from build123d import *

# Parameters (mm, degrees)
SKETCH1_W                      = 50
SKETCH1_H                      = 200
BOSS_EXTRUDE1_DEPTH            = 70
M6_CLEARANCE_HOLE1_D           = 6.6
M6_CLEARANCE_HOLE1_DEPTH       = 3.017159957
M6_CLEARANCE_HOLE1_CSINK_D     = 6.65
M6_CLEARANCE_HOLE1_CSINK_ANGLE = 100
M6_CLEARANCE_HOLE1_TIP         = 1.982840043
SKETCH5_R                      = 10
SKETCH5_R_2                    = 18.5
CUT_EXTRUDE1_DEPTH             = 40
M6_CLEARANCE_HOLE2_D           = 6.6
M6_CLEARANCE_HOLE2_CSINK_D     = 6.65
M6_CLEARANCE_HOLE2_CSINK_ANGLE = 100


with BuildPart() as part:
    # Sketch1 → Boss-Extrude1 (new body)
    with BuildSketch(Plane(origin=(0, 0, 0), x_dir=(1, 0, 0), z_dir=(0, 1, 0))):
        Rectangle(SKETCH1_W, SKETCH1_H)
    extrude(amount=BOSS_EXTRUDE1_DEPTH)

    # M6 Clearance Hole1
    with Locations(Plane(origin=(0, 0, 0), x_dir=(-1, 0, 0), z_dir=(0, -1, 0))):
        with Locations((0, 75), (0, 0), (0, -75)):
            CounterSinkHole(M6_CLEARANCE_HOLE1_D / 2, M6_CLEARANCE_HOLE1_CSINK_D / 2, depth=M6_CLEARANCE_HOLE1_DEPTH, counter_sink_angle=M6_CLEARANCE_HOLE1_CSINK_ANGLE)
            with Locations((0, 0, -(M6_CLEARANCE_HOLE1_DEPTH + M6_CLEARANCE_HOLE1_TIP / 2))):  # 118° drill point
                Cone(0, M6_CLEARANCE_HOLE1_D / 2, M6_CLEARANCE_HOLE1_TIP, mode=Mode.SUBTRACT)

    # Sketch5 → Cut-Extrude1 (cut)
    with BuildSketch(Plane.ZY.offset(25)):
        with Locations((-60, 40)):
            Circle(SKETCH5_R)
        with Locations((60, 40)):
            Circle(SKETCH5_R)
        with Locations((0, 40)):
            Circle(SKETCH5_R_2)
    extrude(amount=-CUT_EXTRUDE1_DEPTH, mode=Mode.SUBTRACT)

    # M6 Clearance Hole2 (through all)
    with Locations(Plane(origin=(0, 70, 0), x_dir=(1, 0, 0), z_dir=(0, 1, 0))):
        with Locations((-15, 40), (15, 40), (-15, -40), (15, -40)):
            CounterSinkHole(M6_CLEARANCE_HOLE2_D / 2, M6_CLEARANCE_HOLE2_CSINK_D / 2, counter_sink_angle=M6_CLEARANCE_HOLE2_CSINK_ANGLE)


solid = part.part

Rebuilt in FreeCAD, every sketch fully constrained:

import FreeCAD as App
import Part
import Sketcher

V = App.Vector
Q = App.Units.Quantity

doc = App.newDocument("Part")
params = doc.addObject("Spreadsheet::Sheet", "Params")
for row, (alias, value) in enumerate([
    ("sketch1_width", "50 mm"),
    ("sketch1_height", "200 mm"),
    ("pad1_length", "70 mm"),
    ("sketch2_diameter", "6.6 mm"),
    ("hole_diameter", "6.6 mm"),
    ("hole_depth", "3.01716 mm"),
    ("hole_csink_diameter", "6.65 mm"),
    ("sketch3_diameter", "20 mm"),
    ("sketch3_diameter2", "37 mm"),
    ("pocket1_length", "40 mm"),
    ("sketch4_diameter", "6.6 mm"),
    ("hole2_diameter", "6.6 mm"),
    ("hole2_csink_diameter", "6.65 mm"),
], start=1):
    params.set(f"A{row}", alias)
    params.set(f"B{row}", "=" + value)
    params.setAlias(f"B{row}", alias)

body = doc.addObject("PartDesign::Body", "Body")

# Sketch on XZ plane
sketch1 = body.newObject("Sketcher::SketchObject", "Sketch")
sketch1.AttachmentSupport = (doc.getObject("XZ_Plane"), [""])
sketch1.MapMode = "FlatFace"
sketch1.addGeometry([
    Part.LineSegment(V(-25, -100, 0), V(-25, 100, 0)),
    Part.LineSegment(V(-25, 100, 0), V(25, 100, 0)),
    Part.LineSegment(V(25, 100, 0), V(25, -100, 0)),
    Part.LineSegment(V(25, -100, 0), V(-25, -100, 0)),
], False)
sketch1.addConstraint([
    Sketcher.Constraint("Coincident", 0, 2, 1, 1),
    Sketcher.Constraint("Coincident", 1, 2, 2, 1),
    Sketcher.Constraint("Coincident", 2, 2, 3, 1),
    Sketcher.Constraint("Coincident", 3, 2, 0, 1),
    Sketcher.Constraint("Vertical", 0),
    Sketcher.Constraint("Horizontal", 1),
    Sketcher.Constraint("Vertical", 2),
    Sketcher.Constraint("Horizontal", 3),
    Sketcher.Constraint("Symmetric", 0, 2, 2, 2, -1, 1),
    Sketcher.Constraint("DistanceX", 1, 1, 1, 2, Q("50 mm")),
    Sketcher.Constraint("DistanceY", 0, 1, 0, 2, Q("200 mm")),
])
sketch1.setExpression("Constraints[9]", "Params.sketch1_width")
sketch1.setExpression("Constraints[10]", "Params.sketch1_height")
pad1 = body.newObject("PartDesign::Pad", "Pad")
pad1.Profile = sketch1
pad1.setExpression("Length", "Params.pad1_length")
pad1.Reversed = True

# Sketch on XZ plane
sketch2 = body.newObject("Sketcher::SketchObject", "Sketch001")
sketch2.AttachmentSupport = (doc.getObject("XZ_Plane"), [""])
sketch2.MapMode = "FlatFace"
sketch2.addGeometry([
    Part.Circle(V(0, -75, 0), V(0, 0, 1), 3.3),
    Part.Circle(V(0, 0, 0), V(0, 0, 1), 3.3),
    Part.Circle(V(0, 75, 0), V(0, 0, 1), 3.3),
], False)
sketch2.addConstraint([
    Sketcher.Constraint("Coincident", 1, 3, -1, 1),
    Sketcher.Constraint("Equal", 0, 1),
    Sketcher.Constraint("Equal", 1, 2),
    Sketcher.Constraint("Symmetric", 0, 3, 2, 3, -1, 1),
    Sketcher.Constraint("PointOnObject", 0, 3, -2),
    Sketcher.Constraint("Diameter", 0, Q("6.6 mm")),
    Sketcher.Constraint("DistanceY", 0, 3, -1, 1, Q("75 mm")),
])
sketch2.setExpression("Constraints[5]", "Params.sketch2_diameter")
doc.recompute()
hole = body.newObject("PartDesign::Hole", "Hole")
hole.Profile = sketch2
hole.ThreadType = "None"
hole.setExpression("Diameter", "Params.hole_diameter")
hole.DepthType = "Dimension"
hole.setExpression("Depth", "Params.hole_depth")
hole.DrillPoint = "Angled"
hole.DrillPointAngle = 118
hole.HoleCutType = "Countersink"
hole.setExpression("HoleCutDiameter", "Params.hole_csink_diameter")
hole.HoleCutCountersinkAngle = 100

# Sketch on YZ plane
sketch3 = body.newObject("Sketcher::SketchObject", "Sketch002")
sketch3.AttachmentSupport = (doc.getObject("YZ_Plane"), [""])
sketch3.MapMode = "FlatFace"
sketch3.AttachmentOffset = App.Placement(V(0, 0, -25), App.Rotation())
sketch3.addGeometry([
    Part.Circle(V(40, -60, 0), V(0, 0, 1), 10),
    Part.Circle(V(40, 60, 0), V(0, 0, 1), 10),
    Part.Circle(V(40, 0, 0), V(0, 0, 1), 18),
], False)
sketch3.addConstraint([
    Sketcher.Constraint("Equal", 0, 1),
    Sketcher.Constraint("Symmetric", 0, 3, 1, 3, -1),
    Sketcher.Constraint("PointOnObject", 2, 3, -1),
    Sketcher.Constraint("Vertical", 1, 3, 2, 3),
    Sketcher.Constraint("Diameter", 0, Q("20 mm")),
    Sketcher.Constraint("Diameter", 2, Q("37 mm")),
    Sketcher.Constraint("DistanceX", -1, 1, 0, 3, Q("40 mm")),
    Sketcher.Constraint("DistanceY", 0, 3, -1, 1, Q("60 mm")),
])
sketch3.setExpression("Constraints[4]", "Params.sketch3_diameter")
sketch3.setExpression("Constraints[5]", "Params.sketch3_diameter2")
pocket1 = body.newObject("PartDesign::Pocket", "Pocket")
pocket1.Profile = sketch3
pocket1.setExpression("Length", "Params.pocket1_length")
pocket1.Reversed = True

# Sketch on XZ plane
sketch4 = body.newObject("Sketcher::SketchObject", "Sketch003")
sketch4.AttachmentSupport = (doc.getObject("XZ_Plane"), [""])
sketch4.MapMode = "FlatFace"
sketch4.AttachmentOffset = App.Placement(V(0, 0, -70), App.Rotation())
sketch4.addGeometry([
    Part.Circle(V(-15, -40, 0), V(0, 0, 1), 3.3),
    Part.Circle(V(15, -40, 0), V(0, 0, 1), 3.3),
    Part.Circle(V(-15, 40, 0), V(0, 0, 1), 3.3),
    Part.Circle(V(15, 40, 0), V(0, 0, 1), 3.3),
], False)
sketch4.addConstraint([
    Sketcher.Constraint("Equal", 0, 1),
    Sketcher.Constraint("Equal", 1, 2),
    Sketcher.Constraint("Equal", 2, 3),
    Sketcher.Constraint("Symmetric", 1, 3, 2, 3, -1, 1),
    Sketcher.Constraint("Symmetric", 0, 3, 3, 3, -1, 1),
    Sketcher.Constraint("Symmetric", 0, 3, 1, 3, -2),
    Sketcher.Constraint("Diameter", 0, Q("6.6 mm")),
    Sketcher.Constraint("DistanceX", 0, 3, -1, 1, Q("15 mm")),
    Sketcher.Constraint("DistanceY", 0, 3, -1, 1, Q("40 mm")),
])
sketch4.setExpression("Constraints[6]", "Params.sketch4_diameter")
doc.recompute()
hole2 = body.newObject("PartDesign::Hole", "Hole001")
hole2.Profile = sketch4
hole2.ThreadType = "None"
hole2.setExpression("Diameter", "Params.hole2_diameter")
hole2.DepthType = "ThroughAll"
hole2.HoleCutType = "Countersink"
hole2.setExpression("HoleCutDiameter", "Params.hole2_csink_diameter")
hole2.HoleCutCountersinkAngle = 100
hole2.Reversed = True

doc.recompute()
